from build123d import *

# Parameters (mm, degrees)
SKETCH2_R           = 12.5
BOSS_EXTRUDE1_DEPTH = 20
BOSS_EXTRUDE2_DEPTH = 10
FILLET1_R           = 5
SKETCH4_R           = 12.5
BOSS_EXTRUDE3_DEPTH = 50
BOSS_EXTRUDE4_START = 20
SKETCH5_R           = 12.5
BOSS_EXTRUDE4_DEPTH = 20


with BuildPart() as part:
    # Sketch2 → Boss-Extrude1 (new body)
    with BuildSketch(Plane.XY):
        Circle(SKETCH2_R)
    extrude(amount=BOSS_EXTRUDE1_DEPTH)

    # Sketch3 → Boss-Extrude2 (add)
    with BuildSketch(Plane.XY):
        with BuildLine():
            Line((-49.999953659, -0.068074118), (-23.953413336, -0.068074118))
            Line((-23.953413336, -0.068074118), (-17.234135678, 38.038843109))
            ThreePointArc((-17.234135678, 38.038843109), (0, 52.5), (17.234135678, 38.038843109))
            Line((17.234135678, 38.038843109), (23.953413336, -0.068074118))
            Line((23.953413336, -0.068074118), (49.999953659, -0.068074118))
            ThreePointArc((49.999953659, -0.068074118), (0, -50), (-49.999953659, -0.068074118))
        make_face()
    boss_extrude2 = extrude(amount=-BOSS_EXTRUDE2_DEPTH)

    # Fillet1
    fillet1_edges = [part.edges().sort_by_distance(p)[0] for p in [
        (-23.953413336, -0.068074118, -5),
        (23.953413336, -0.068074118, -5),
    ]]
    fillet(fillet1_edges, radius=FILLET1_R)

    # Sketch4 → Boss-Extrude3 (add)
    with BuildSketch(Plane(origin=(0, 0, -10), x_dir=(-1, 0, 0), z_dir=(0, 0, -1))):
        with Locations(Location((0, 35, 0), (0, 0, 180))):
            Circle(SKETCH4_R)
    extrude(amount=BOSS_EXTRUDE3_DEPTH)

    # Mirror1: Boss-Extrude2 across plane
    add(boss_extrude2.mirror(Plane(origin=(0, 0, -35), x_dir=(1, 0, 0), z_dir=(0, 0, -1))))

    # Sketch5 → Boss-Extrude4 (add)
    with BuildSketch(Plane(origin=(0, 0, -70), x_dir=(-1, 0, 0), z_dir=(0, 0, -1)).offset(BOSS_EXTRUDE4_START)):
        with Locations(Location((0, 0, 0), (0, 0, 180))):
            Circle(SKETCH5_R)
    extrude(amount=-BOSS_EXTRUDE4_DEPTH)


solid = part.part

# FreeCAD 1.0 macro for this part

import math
import FreeCAD as App
import Part
import Sketcher
from FreeCAD import Vector
Q = App.Units.Quantity


def edges_at(feature, points):
    """Names of the edges that pass closest to the given points."""
    edges = feature.Shape.Edges
    near = lambda p: min(range(len(edges)), key=lambda i: edges[i].distToShape(Part.Vertex(*p))[0])
    return sorted({f"Edge{near(p) + 1}" for p in points})

doc = App.newDocument("Part")
body = doc.addObject("PartDesign::Body", "Body")

# Sketch on XY plane
sketch1 = body.newObject("Sketcher::SketchObject", "Sketch")
sketch1.AttachmentSupport = (doc.getObject("XY_Plane"), [""])
sketch1.MapMode = "FlatFace"
sketch1.addGeometry(Part.Circle(Vector(0, 0, 0), Vector(0, 0, 1), 12.5), False)
sketch1.addConstraint([
    Sketcher.Constraint("Coincident", 0, 3, -1, 1),
    Sketcher.Constraint("Diameter", 0, Q("25 mm")),
])
pad1 = body.newObject("PartDesign::Pad", "Pad")
pad1.Profile = sketch1
pad1.Length = 20

# Sketch on XY plane
sketch2 = body.newObject("Sketcher::SketchObject", "Sketch001")
sketch2.AttachmentSupport = (doc.getObject("XY_Plane"), [""])
sketch2.MapMode = "FlatFace"
sketch2.addGeometry([
    Part.LineSegment(Vector(-23.953413, -0.068074, 0), Vector(-49.999954, -0.068074, 0)),  # 0
    Part.ArcOfCircle(Part.Circle(Vector(0, 0, 0), Vector(0, 0, 1), 50), math.radians(-179.921993), math.radians(-0.078007)),  # 1
    Part.LineSegment(Vector(49.999954, -0.068074, 0), Vector(23.953413, -0.068074, 0)),  # 2
    Part.LineSegment(Vector(23.953413, -0.068074, 0), Vector(17.234136, 38.038843, 0)),  # 3
    Part.ArcOfCircle(Part.Circle(Vector(0, 35, 0), Vector(0, 0, 1), 17.5), math.radians(10), math.radians(170)),  # 4
    Part.LineSegment(Vector(-17.234136, 38.038843, 0), Vector(-23.953413, -0.068074, 0)),  # 5
], False)
sketch2.addConstraint([
    Sketcher.Constraint("Coincident", 0, 2, 1, 1),
    Sketcher.Constraint("Coincident", 1, 2, 2, 1),
    Sketcher.Constraint("Coincident", 2, 2, 3, 1),
    Sketcher.Constraint("Tangent", 3, 2, 4, 1),
    Sketcher.Constraint("Tangent", 4, 2, 5, 1),
    Sketcher.Constraint("Coincident", 5, 2, 0, 1),
    Sketcher.Constraint("Horizontal", 0),
    Sketcher.Constraint("Horizontal", 2),
    Sketcher.Constraint("Coincident", 1, 3, -1, 1),
    Sketcher.Constraint("Symmetric", 3, 2, 4, 2, -2),
    Sketcher.Constraint("Horizontal", 0, 2, 1, 2),
    Sketcher.Constraint("Radius", 1, Q("50 mm")),
    Sketcher.Constraint("Radius", 4, Q("17.5 mm")),
    Sketcher.Constraint("Angle", 3, Q("100 deg")),
    Sketcher.Constraint("DistanceY", -1, 1, 4, 3, Q("35 mm")),
    Sketcher.Constraint("DistanceX", 0, 2, 0, 1, Q("26.04654 mm")),
])
pad2 = body.newObject("PartDesign::Pad", "Pad001")
pad2.Profile = sketch2
pad2.Length = 10
pad2.Reversed = True
doc.recompute()

fillet = body.newObject("PartDesign::Fillet", "Fillet")
fillet.Base = (pad2, edges_at(pad2, [(-23.953, -0.068, -5), (23.953, -0.068, -5)]))
fillet.Radius = 5

# Sketch on XY plane
sketch3 = body.newObject("Sketcher::SketchObject", "Sketch002")
sketch3.AttachmentSupport = (doc.getObject("XY_Plane"), [""])
sketch3.MapMode = "FlatFace"
sketch3.AttachmentOffset = App.Placement(Vector(0, 0, -10), App.Rotation())
sketch3.addGeometry(Part.Circle(Vector(0, 35, 0), Vector(0, 0, 1), 12.5), False)
sketch3.addConstraint([
    Sketcher.Constraint("PointOnObject", 0, 3, -2),
    Sketcher.Constraint("Diameter", 0, Q("25 mm")),
    Sketcher.Constraint("DistanceY", -1, 1, 0, 3, Q("35 mm")),
])
pad3 = body.newObject("PartDesign::Pad", "Pad002")
pad3.Profile = sketch3
pad3.Length = 50
pad3.Reversed = True
doc.recompute()

datumplane = body.newObject("PartDesign::Plane", "DatumPlane")
datumplane.AttachmentSupport = (doc.getObject("XY_Plane"), [""])
datumplane.MapMode = "FlatFace"
datumplane.AttachmentOffset = App.Placement(Vector(0, 0, -35), App.Rotation())
mirrored = body.newObject("PartDesign::Mirrored", "Mirrored")
mirrored.Originals = [pad2]
mirrored.MirrorPlane = (datumplane, [""])
body.Tip = mirrored

# Sketch on XY plane
sketch4 = body.newObject("Sketcher::SketchObject", "Sketch003")
sketch4.AttachmentSupport = (doc.getObject("XY_Plane"), [""])
sketch4.MapMode = "FlatFace"
sketch4.AttachmentOffset = App.Placement(Vector(0, 0, -90), App.Rotation())
sketch4.addGeometry(Part.Circle(Vector(0, 0, 0), Vector(0, 0, 1), 12.5), False)
sketch4.addConstraint([
    Sketcher.Constraint("Coincident", 0, 3, -1, 1),
    Sketcher.Constraint("Diameter", 0, Q("25 mm")),
])
pad4 = body.newObject("PartDesign::Pad", "Pad003")
pad4.Profile = sketch4
pad4.Length = 20

doc.recompute()
